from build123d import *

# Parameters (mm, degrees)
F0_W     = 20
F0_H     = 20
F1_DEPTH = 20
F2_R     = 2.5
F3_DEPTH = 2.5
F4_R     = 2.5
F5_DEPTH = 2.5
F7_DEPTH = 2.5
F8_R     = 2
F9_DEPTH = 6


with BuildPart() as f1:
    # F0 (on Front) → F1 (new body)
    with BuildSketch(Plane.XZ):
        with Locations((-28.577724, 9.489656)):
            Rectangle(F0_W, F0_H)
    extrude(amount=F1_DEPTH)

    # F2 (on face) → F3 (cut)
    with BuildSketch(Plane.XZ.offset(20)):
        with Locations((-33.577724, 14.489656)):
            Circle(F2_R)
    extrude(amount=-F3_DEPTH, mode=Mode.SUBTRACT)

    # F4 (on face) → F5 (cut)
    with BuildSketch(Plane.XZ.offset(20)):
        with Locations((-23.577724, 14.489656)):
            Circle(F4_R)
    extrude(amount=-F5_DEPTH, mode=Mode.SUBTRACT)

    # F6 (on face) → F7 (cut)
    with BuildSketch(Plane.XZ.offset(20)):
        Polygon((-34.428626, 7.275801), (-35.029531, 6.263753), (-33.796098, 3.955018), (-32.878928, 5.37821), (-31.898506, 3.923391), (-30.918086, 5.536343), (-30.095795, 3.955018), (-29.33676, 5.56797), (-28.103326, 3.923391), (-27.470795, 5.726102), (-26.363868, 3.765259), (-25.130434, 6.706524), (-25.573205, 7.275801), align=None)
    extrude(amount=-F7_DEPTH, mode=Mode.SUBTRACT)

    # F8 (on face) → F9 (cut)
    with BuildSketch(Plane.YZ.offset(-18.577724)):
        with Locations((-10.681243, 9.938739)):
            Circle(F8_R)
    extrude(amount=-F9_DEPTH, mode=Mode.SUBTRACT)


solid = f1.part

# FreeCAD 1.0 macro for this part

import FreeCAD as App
import Part
import Sketcher
from FreeCAD import Vector
Q = App.Units.Quantity

doc = App.newDocument("Part")
body = doc.addObject("PartDesign::Body", "Body")

# Sketch on XZ plane
sketch1 = doc.addObject("Sketcher::SketchObject", "Sketch")
body.addObject(sketch1)
sketch1.AttachmentSupport = (doc.XZ_Plane, [""])
sketch1.MapMode = "FlatFace"
sketch1.addGeometry([
    Part.LineSegment(Vector(-39, 19, 0), Vector(-39, -1, 0)),
    Part.LineSegment(Vector(-39, -1, 0), Vector(-19, -1, 0)),
    Part.LineSegment(Vector(-19, -1, 0), Vector(-19, 19, 0)),
    Part.LineSegment(Vector(-19, 19, 0), Vector(-39, 19, 0)),
], False)
sketch1.addConstraint([
    Sketcher.Constraint("Coincident", 0, 2, 1, 1),
    Sketcher.Constraint("Coincident", 1, 2, 2, 1),
    Sketcher.Constraint("Coincident", 2, 2, 3, 1),
    Sketcher.Constraint("Coincident", 3, 2, 0, 1),
    Sketcher.Constraint("Vertical", 0),
    Sketcher.Constraint("Horizontal", 1),
    Sketcher.Constraint("Vertical", 2),
    Sketcher.Constraint("Horizontal", 3),
    Sketcher.Constraint("Equal", 3, 0),
    Sketcher.Constraint("DistanceX", 1, 1, 1, 2, Q("20 mm")),
    Sketcher.Constraint("DistanceX", 0, 2, -1, 1, Q("38.577724 mm")),
    Sketcher.Constraint("DistanceY", 0, 2, -1, 1, Q("0.510344 mm")),
])
pad1 = doc.addObject("PartDesign::Pad", "Pad")
body.addObject(pad1)
pad1.Profile = sketch1
pad1.Length = 20

# Sketch on XZ plane
sketch2 = doc.addObject("Sketcher::SketchObject", "Sketch001")
body.addObject(sketch2)
sketch2.AttachmentSupport = (doc.XZ_Plane, [""])
sketch2.MapMode = "FlatFace"
sketch2.AttachmentOffset = App.Placement(Vector(0, 0, 20), App.Rotation())
sketch2.addGeometry(Part.Circle(Vector(-33.6, 14.5, 0), Vector(0, 0, 1), 2.5), False)
sketch2.addConstraint([
    Sketcher.Constraint("Diameter", 0, Q("5 mm")),
    Sketcher.Constraint("DistanceX", 0, 3, -1, 1, Q("33.577724 mm")),
    Sketcher.Constraint("DistanceY", -1, 1, 0, 3, Q("14.489656 mm")),
])
pocket1 = doc.addObject("PartDesign::Pocket", "Pocket")
body.addObject(pocket1)
pocket1.Profile = sketch2
pocket1.Length = 2.5

# Sketch on XZ plane
sketch3 = doc.addObject("Sketcher::SketchObject", "Sketch002")
body.addObject(sketch3)
sketch3.AttachmentSupport = (doc.XZ_Plane, [""])
sketch3.MapMode = "FlatFace"
sketch3.AttachmentOffset = App.Placement(Vector(0, 0, 20), App.Rotation())
sketch3.addGeometry(Part.Circle(Vector(-23.6, 14.5, 0), Vector(0, 0, 1), 2.5), False)
sketch3.addConstraint([
    Sketcher.Constraint("Diameter", 0, Q("5 mm")),
    Sketcher.Constraint("DistanceX", 0, 3, -1, 1, Q("23.577724 mm")),
    Sketcher.Constraint("DistanceY", -1, 1, 0, 3, Q("14.489656 mm")),
])
pocket2 = doc.addObject("PartDesign::Pocket", "Pocket001")
body.addObject(pocket2)
pocket2.Profile = sketch3
pocket2.Length = 2.5

# Sketch on XZ plane
sketch4 = doc.addObject("Sketcher::SketchObject", "Sketch003")
body.addObject(sketch4)
sketch4.AttachmentSupport = (doc.XZ_Plane, [""])
sketch4.MapMode = "FlatFace"
sketch4.AttachmentOffset = App.Placement(Vector(0, 0, 20), App.Rotation())
sketch4.addGeometry([
    Part.LineSegment(Vector(-34.4, 7.3, 0), Vector(-35, 6.3, 0)),  # 0
    Part.LineSegment(Vector(-35, 6.3, 0), Vector(-33.8, 4, 0)),  # 1
    Part.LineSegment(Vector(-33.8, 4, 0), Vector(-32.9, 5.4, 0)),  # 2
    Part.LineSegment(Vector(-32.9, 5.4, 0), Vector(-31.9, 3.9, 0)),  # 3
    Part.LineSegment(Vector(-31.9, 3.9, 0), Vector(-30.9, 5.5, 0)),  # 4
    Part.LineSegment(Vector(-30.9, 5.5, 0), Vector(-30.1, 4, 0)),  # 5
    Part.LineSegment(Vector(-30.1, 4, 0), Vector(-29.3, 5.6, 0)),  # 6
    Part.LineSegment(Vector(-29.3, 5.6, 0), Vector(-28.1, 3.9, 0)),  # 7
    Part.LineSegment(Vector(-28.1, 3.9, 0), Vector(-27.5, 5.7, 0)),  # 8
    Part.LineSegment(Vector(-27.5, 5.7, 0), Vector(-26.4, 3.8, 0)),  # 9
    Part.LineSegment(Vector(-26.4, 3.8, 0), Vector(-25.1, 6.7, 0)),  # 10
    Part.LineSegment(Vector(-25.1, 6.7, 0), Vector(-25.6, 7.3, 0)),  # 11
    Part.LineSegment(Vector(-25.6, 7.3, 0), Vector(-34.4, 7.3, 0)),  # 12
], False)
sketch4.addConstraint([
    Sketcher.Constraint("Coincident", 0, 2, 1, 1),
    Sketcher.Constraint("Coincident", 1, 2, 2, 1),
    Sketcher.Constraint("Coincident", 2, 2, 3, 1),
    Sketcher.Constraint("Coincident", 3, 2, 4, 1),
    Sketcher.Constraint("Coincident", 4, 2, 5, 1),
    Sketcher.Constraint("Coincident", 5, 2, 6, 1),
    Sketcher.Constraint("Coincident", 6, 2, 7, 1),
    Sketcher.Constraint("Coincident", 7, 2, 8, 1),
    Sketcher.Constraint("Coincident", 8, 2, 9, 1),
    Sketcher.Constraint("Coincident", 9, 2, 10, 1),
    Sketcher.Constraint("Coincident", 10, 2, 11, 1),
    Sketcher.Constraint("Coincident", 11, 2, 12, 1),
    Sketcher.Constraint("Coincident", 12, 2, 0, 1),
    Sketcher.Constraint("Horizontal", 12),
    Sketcher.Constraint("Horizontal", 1, 2, 5, 2),
    Sketcher.Constraint("Horizontal", 3, 2, 7, 2),
    Sketcher.Constraint("Distance", 0, Q("1.177 mm")),
    Sketcher.Constraint("DistanceX", 5, 2, 8, 2, Q("2.625 mm")),
    Sketcher.Constraint("DistanceX", 12, 2, 12, 1, Q("8.855421 mm")),
    Sketcher.Constraint("DistanceY", -1, 1, 11, 2, Q("7.275801 mm")),
    Sketcher.Constraint("DistanceY", 8, 2, 11, 2, Q("1.549699 mm")),
    Sketcher.Constraint("Distance", 1, Q("2.617559 mm")),
    Sketcher.Constraint("Distance", 4, Q("1.887548 mm")),
    Sketcher.Constraint("Distance", 8, Q("1.910461 mm")),
    Sketcher.Constraint("Distance", 9, Q("2.251709 mm")),
    Sketcher.Constraint("Distance", 10, Q("3.18942 mm")),
    Sketcher.Constraint("DistanceX", 0, 2, -1, 1, Q("35.029531 mm")),
    Sketcher.Constraint("DistanceX", 2, 2, -1, 1, Q("32.878928 mm")),
    Sketcher.Constraint("DistanceY", -1, 1, 2, 2, Q("5.37821 mm")),
    Sketcher.Constraint("DistanceY", -1, 1, 3, 2, Q("3.923391 mm")),
    Sketcher.Constraint("DistanceX", 6, 2, -1, 1, Q("29.33676 mm")),
    Sketcher.Constraint("DistanceY", -1, 1, 6, 2, Q("5.56797 mm")),
    Sketcher.Constraint("DistanceX", 9, 2, -1, 1, Q("26.363868 mm")),
    Sketcher.Constraint("DistanceY", -1, 1, 9, 2, Q("3.765259 mm")),
    Sketcher.Constraint("DistanceX", 1, 2, 2, 2, Q("0.91717 mm")),
    Sketcher.Constraint("DistanceX", 1, 2, 3, 2, Q("1.897592 mm")),
    Sketcher.Constraint("DistanceX", 3, 2, 4, 2, Q("0.98042 mm")),
    Sketcher.Constraint("DistanceY", 4, 2, 0, 2, Q("0.72741 mm")),
    Sketcher.Constraint("DistanceX", 8, 2, 10, 2, Q("2.340361 mm")),
])
pocket3 = doc.addObject("PartDesign::Pocket", "Pocket002")
body.addObject(pocket3)
pocket3.Profile = sketch4
pocket3.Length = 2.5

# Sketch on YZ plane
sketch5 = doc.addObject("Sketcher::SketchObject", "Sketch004")
body.addObject(sketch5)
sketch5.AttachmentSupport = (doc.YZ_Plane, [""])
sketch5.MapMode = "FlatFace"
sketch5.AttachmentOffset = App.Placement(Vector(0, 0, -18.577724), App.Rotation())
sketch5.addGeometry(Part.Circle(Vector(-10.7, 9.9, 0), Vector(0, 0, 1), 2), False)
sketch5.addConstraint([
    Sketcher.Constraint("Diameter", 0, Q("4 mm")),
    Sketcher.Constraint("DistanceY", -1, 1, 0, 3, Q("9.938739 mm")),
    Sketcher.Constraint("DistanceX", 0, 3, -1, 1, Q("10.681243 mm")),
])
pocket4 = doc.addObject("PartDesign::Pocket", "Pocket003")
body.addObject(pocket4)
pocket4.Profile = sketch5
pocket4.Length = 6

doc.recompute()
